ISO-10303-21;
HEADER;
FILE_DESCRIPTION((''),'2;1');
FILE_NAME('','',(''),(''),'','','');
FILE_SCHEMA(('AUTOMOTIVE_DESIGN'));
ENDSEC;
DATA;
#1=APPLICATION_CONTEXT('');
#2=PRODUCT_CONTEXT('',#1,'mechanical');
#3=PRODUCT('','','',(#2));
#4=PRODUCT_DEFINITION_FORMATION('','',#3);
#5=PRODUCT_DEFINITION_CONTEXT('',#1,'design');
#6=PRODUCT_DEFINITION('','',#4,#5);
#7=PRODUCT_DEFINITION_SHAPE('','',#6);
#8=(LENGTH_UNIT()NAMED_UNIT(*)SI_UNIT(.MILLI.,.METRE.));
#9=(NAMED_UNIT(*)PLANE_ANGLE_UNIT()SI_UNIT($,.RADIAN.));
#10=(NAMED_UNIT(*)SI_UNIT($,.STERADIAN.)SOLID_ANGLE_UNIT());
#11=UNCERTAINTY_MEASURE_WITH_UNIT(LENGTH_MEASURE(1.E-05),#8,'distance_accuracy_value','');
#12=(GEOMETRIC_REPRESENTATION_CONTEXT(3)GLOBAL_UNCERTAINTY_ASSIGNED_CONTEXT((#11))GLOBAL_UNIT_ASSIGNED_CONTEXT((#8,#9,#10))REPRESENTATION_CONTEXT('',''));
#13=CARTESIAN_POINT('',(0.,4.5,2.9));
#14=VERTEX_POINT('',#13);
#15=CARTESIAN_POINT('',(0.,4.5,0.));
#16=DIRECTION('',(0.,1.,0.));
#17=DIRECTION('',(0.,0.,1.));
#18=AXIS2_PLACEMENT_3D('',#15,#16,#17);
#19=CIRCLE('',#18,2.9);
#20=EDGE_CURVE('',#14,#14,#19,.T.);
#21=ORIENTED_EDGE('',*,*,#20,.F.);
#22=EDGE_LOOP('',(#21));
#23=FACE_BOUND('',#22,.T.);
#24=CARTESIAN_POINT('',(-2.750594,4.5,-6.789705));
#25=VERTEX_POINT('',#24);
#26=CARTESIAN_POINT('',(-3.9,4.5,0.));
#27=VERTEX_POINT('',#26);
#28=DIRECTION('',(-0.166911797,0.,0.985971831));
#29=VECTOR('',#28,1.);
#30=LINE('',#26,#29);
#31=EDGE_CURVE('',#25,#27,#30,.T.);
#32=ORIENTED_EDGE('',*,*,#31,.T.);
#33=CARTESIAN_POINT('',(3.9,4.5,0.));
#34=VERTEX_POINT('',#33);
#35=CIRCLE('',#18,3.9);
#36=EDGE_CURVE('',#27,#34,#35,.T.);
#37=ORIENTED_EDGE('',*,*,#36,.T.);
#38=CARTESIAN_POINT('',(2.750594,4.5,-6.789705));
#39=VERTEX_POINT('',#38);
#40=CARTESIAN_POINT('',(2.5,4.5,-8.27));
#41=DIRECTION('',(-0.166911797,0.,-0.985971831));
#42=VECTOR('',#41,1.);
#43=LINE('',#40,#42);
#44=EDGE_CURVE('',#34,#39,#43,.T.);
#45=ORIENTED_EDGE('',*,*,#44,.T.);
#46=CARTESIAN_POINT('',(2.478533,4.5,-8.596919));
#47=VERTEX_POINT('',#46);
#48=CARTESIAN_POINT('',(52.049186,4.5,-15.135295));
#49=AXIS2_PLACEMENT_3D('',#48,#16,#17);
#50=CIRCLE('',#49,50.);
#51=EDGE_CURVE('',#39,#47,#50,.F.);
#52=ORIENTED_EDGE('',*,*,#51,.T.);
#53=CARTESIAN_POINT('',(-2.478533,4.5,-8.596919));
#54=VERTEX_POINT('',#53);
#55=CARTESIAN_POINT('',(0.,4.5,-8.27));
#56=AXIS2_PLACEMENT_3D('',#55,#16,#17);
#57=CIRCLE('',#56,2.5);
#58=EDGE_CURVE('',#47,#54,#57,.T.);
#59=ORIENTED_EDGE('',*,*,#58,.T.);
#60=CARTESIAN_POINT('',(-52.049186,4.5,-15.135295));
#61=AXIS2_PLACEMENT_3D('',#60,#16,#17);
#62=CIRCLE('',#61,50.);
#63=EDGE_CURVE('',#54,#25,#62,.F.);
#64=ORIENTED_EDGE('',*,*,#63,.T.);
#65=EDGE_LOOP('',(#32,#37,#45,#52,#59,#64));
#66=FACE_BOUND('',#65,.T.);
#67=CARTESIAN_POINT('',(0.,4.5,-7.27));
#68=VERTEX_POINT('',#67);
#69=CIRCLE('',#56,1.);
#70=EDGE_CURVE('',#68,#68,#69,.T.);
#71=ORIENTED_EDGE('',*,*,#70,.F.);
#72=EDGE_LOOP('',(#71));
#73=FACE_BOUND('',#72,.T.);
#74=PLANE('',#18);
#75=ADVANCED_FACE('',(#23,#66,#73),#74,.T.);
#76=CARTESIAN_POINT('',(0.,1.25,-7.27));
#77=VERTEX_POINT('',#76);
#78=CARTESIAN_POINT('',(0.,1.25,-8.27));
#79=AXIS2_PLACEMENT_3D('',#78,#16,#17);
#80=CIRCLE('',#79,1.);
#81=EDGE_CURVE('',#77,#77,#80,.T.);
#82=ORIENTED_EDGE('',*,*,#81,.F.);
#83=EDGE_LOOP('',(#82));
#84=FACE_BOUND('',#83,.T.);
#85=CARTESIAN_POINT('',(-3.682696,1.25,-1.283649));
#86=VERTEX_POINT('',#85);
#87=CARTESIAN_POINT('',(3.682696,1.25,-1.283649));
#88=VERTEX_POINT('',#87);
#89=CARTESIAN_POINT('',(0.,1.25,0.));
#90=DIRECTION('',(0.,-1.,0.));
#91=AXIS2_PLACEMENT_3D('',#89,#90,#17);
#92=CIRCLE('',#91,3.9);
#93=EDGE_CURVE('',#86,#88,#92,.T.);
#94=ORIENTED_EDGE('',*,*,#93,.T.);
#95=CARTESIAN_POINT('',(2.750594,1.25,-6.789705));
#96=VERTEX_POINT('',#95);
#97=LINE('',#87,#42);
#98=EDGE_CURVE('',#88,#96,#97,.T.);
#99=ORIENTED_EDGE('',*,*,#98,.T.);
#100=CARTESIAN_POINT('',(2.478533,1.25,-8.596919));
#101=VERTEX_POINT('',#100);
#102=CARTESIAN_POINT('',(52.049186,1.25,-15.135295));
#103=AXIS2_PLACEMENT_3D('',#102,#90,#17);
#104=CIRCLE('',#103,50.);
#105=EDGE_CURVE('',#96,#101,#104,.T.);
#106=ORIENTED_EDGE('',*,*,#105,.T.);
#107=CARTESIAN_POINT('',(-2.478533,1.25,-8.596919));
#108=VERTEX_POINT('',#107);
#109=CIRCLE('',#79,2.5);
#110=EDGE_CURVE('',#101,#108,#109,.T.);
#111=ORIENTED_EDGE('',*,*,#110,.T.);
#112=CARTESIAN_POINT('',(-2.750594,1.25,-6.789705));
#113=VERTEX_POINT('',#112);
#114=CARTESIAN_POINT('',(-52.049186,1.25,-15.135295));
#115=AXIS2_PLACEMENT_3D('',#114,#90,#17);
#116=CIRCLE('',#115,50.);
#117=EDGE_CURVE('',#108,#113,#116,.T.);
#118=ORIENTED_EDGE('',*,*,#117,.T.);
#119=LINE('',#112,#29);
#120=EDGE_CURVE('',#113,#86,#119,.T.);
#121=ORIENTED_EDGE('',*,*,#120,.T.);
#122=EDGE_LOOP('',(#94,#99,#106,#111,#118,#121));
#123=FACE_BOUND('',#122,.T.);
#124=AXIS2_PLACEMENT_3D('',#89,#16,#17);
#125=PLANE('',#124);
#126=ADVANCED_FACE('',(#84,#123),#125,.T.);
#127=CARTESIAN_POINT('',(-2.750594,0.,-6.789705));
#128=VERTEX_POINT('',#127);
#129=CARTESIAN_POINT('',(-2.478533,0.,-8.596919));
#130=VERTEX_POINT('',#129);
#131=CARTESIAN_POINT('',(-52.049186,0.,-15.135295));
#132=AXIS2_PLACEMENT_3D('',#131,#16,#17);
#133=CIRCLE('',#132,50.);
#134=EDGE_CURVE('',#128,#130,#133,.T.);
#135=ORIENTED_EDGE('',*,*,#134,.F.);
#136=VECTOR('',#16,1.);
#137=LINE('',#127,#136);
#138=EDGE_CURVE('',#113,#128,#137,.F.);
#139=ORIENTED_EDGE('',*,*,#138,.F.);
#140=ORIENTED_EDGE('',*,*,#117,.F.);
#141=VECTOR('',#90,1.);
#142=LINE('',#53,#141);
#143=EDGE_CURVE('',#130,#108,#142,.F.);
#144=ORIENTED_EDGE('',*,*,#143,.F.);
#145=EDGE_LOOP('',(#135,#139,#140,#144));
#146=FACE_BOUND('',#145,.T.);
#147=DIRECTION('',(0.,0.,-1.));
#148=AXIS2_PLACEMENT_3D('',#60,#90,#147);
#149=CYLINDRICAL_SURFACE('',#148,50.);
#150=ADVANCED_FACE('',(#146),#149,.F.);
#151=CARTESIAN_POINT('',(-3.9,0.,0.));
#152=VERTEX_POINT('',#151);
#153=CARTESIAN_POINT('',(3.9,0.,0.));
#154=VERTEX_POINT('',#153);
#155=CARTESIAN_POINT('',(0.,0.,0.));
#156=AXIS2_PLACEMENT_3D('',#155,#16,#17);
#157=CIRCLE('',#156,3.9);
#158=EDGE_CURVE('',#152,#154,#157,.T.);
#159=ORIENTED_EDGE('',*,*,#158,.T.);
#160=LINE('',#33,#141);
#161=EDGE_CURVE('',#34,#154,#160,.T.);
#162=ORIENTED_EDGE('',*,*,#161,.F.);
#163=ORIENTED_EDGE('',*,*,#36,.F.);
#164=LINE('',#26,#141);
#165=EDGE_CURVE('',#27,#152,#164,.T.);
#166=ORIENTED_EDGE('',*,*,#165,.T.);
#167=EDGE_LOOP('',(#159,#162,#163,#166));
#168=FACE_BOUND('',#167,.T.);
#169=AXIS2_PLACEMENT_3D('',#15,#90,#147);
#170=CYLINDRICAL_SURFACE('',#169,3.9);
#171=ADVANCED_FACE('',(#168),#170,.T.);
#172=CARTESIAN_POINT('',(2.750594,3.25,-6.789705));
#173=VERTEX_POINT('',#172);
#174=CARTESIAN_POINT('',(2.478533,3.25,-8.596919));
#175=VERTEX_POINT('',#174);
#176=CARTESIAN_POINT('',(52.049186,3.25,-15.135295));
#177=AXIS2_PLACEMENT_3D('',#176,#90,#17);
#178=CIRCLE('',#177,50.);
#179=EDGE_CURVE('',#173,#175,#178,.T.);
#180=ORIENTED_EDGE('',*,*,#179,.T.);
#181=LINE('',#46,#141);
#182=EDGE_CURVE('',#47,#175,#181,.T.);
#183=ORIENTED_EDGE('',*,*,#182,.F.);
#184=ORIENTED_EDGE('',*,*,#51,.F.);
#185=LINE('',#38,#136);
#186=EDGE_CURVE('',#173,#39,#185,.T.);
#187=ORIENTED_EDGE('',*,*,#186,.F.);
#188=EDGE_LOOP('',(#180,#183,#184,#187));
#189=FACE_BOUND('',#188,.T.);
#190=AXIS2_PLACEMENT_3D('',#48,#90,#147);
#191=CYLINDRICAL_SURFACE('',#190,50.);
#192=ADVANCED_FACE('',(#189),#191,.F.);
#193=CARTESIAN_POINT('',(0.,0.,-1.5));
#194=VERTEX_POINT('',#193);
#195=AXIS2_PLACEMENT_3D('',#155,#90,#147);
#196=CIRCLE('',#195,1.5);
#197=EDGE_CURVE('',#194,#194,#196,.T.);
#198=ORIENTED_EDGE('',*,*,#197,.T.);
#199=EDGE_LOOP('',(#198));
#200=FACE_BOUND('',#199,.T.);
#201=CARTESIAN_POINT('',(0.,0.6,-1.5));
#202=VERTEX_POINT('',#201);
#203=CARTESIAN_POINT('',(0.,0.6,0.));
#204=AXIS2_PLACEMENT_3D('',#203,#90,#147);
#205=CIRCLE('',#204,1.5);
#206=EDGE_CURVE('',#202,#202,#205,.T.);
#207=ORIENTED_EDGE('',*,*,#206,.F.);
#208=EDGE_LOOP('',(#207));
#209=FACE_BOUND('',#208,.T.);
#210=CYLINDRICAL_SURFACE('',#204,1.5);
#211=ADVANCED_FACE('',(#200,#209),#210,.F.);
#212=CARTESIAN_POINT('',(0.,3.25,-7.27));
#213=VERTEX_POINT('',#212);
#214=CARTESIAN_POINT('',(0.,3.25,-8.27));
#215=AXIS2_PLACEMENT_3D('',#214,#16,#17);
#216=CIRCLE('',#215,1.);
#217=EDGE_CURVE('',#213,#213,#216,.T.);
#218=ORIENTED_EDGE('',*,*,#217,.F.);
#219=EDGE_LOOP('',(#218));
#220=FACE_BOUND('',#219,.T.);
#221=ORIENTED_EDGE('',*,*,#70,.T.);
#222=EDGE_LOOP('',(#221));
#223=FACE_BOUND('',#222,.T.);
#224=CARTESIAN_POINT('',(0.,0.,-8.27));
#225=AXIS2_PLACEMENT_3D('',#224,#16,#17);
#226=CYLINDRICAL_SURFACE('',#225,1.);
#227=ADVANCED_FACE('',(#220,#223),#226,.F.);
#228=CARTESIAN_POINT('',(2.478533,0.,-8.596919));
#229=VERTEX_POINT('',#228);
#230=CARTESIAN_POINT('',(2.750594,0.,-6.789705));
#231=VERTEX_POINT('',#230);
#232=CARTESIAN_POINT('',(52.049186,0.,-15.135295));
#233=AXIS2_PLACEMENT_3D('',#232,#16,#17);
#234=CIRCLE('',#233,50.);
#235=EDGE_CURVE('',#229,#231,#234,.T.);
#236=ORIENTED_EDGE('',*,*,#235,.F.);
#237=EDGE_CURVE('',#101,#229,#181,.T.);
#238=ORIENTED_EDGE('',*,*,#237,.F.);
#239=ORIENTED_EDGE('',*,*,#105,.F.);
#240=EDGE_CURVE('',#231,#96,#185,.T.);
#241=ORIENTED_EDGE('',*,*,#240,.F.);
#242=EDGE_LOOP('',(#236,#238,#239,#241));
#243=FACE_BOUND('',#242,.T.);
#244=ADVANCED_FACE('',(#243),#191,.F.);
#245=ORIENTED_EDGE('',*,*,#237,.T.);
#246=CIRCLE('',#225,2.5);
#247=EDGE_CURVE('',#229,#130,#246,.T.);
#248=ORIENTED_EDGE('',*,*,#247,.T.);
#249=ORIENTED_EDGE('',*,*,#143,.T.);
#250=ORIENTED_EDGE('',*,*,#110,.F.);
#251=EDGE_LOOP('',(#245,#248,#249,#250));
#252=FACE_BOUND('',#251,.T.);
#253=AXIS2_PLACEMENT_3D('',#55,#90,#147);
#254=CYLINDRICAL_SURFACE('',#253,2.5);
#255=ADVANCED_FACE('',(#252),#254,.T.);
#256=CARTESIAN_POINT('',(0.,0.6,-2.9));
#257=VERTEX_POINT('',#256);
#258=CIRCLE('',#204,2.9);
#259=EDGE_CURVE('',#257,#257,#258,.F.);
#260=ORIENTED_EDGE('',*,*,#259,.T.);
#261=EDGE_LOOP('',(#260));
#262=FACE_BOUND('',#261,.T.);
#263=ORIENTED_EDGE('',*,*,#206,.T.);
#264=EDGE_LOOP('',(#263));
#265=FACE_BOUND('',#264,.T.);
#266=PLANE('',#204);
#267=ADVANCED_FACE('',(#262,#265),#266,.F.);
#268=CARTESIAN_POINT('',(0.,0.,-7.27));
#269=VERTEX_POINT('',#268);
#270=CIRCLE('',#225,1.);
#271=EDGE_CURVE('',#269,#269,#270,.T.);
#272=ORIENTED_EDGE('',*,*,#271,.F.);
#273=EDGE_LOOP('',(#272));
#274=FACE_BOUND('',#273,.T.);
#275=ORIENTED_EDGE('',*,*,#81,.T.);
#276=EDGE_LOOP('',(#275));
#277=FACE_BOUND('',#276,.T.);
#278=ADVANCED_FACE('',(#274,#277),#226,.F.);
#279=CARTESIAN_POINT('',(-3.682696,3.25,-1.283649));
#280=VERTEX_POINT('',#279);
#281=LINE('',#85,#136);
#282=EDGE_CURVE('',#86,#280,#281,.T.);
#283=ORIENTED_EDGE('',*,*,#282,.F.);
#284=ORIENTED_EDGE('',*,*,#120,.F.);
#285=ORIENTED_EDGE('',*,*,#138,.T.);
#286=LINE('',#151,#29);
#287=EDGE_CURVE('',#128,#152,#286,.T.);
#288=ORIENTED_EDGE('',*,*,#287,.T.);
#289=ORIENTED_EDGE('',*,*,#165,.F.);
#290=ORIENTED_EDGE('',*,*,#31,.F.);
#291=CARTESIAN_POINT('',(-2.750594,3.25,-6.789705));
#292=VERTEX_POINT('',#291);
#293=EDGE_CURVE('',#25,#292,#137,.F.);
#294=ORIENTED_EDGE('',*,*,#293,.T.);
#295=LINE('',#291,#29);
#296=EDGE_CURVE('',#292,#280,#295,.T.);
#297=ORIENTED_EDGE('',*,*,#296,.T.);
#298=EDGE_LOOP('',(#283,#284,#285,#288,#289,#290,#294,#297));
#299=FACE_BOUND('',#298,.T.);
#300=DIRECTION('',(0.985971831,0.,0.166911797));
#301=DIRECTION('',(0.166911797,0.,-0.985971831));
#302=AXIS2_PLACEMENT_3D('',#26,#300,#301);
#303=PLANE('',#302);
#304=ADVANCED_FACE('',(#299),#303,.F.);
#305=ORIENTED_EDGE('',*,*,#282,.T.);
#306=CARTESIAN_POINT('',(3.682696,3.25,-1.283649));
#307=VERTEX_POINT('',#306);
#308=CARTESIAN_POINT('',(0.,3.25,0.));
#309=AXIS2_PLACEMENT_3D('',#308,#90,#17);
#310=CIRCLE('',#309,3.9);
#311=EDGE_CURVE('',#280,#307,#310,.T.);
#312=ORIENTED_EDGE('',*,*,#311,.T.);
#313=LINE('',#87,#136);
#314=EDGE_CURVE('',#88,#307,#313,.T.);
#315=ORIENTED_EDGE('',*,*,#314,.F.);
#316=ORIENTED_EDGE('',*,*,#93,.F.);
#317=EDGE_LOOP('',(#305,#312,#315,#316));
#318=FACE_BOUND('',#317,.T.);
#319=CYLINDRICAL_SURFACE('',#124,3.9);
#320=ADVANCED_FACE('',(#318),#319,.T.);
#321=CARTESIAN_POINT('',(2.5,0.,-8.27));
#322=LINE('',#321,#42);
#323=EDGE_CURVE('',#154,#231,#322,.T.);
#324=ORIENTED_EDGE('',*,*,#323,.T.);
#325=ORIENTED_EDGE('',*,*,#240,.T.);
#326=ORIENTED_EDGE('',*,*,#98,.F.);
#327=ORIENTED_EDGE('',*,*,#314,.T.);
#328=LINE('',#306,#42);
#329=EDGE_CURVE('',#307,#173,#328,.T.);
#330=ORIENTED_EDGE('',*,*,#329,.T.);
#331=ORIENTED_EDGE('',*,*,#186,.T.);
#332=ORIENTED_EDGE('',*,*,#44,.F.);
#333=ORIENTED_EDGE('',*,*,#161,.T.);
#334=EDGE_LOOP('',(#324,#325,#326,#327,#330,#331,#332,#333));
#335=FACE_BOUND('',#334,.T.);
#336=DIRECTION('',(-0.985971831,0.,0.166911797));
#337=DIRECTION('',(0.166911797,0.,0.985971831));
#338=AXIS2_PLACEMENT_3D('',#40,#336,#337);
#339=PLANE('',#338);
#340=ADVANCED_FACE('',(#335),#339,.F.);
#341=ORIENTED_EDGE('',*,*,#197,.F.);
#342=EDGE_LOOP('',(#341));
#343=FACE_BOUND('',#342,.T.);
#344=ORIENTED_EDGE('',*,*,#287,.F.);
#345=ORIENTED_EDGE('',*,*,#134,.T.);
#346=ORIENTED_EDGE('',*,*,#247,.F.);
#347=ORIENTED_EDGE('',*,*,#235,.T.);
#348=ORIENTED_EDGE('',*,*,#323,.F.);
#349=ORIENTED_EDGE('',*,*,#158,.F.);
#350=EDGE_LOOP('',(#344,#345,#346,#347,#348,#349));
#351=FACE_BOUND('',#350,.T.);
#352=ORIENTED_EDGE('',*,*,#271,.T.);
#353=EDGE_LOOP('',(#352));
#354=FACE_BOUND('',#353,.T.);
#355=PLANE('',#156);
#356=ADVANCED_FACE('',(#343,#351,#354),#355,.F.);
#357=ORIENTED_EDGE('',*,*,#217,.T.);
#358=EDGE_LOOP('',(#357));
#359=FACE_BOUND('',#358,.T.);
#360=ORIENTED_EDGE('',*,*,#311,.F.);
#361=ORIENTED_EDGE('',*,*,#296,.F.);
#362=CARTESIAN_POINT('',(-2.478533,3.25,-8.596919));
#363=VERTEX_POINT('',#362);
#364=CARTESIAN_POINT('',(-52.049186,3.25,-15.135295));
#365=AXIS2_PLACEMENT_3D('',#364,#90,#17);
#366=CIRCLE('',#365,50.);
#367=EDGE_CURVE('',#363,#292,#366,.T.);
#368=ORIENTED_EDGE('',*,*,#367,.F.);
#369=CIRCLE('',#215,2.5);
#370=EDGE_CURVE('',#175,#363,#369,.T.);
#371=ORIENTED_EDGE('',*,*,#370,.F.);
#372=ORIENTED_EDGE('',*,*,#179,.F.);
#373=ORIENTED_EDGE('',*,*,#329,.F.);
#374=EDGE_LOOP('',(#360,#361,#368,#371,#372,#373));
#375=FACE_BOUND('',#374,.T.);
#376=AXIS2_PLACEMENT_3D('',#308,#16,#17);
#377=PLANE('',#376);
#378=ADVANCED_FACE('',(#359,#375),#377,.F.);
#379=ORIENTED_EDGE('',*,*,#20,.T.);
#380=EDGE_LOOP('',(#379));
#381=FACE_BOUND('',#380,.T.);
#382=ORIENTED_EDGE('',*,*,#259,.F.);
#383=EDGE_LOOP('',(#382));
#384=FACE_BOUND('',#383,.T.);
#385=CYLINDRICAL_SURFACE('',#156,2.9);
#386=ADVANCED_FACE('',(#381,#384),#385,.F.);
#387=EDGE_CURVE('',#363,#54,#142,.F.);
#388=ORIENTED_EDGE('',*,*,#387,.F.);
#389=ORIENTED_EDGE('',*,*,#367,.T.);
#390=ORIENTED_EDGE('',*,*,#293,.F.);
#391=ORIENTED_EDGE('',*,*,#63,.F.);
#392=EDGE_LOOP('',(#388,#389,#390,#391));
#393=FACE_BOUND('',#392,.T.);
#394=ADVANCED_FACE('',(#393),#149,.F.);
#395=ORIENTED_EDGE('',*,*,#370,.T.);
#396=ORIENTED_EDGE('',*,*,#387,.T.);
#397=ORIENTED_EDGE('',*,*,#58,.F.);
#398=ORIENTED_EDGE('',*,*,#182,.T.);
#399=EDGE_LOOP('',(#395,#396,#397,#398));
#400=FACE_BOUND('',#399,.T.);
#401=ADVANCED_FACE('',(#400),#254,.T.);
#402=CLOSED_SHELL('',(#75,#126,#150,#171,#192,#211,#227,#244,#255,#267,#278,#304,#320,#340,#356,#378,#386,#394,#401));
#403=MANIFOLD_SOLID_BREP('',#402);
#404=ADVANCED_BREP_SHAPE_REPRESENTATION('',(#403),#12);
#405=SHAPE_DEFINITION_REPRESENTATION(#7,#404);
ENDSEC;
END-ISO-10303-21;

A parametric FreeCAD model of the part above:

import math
import FreeCAD as App
import Part
import Sketcher
from FreeCAD import Vector
Q = App.Units.Quantity


def edges_at(feature, points):
    """Names of the edges that pass closest to the given points."""
    edges = feature.Shape.Edges
    near = lambda p: min(range(len(edges)), key=lambda i: edges[i].distToShape(Part.Vertex(*p))[0])
    return sorted({f"Edge{near(p) + 1}" for p in points})

doc = App.newDocument("Part")
params = doc.addObject("Spreadsheet::Sheet", "Params")
for row, (alias, value) in enumerate([
    ("sketch1_radius", "3.9 mm"),
    ("sketch1_radius2", "2.5 mm"),
    ("pad1_length", "4.5 mm"),
    ("sketch2_diameter", "2 mm"),
    ("sketch2_diameter2", "5.8 mm"),
    ("fillet_radius", "50 mm"),
    ("sketch3_diameter", "2 mm"),
    ("sketch3_radius", "2.5 mm"),
    ("sketch3_radius2", "3.9 mm"),
    ("pocket2_length", "2 mm"),
    ("sketch4_diameter", "3 mm"),
    ("sketch4_diameter2", "5.8 mm"),
    ("pad2_length", "0.6 mm"),
], start=1):
    params.set(f"A{row}", alias)
    params.set(f"B{row}", "=" + value)
    params.setAlias(f"B{row}", alias)

body = doc.addObject("PartDesign::Body", "Body")

sketch1 = body.newObject("Sketcher::SketchObject", "Sketch")
sketch1.AttachmentSupport = (doc.getObject("XZ_Plane"), [""])
sketch1.MapMode = "FlatFace"
sketch1.addGeometry([
    Part.LineSegment(Vector(-2.5, -8.3, 0), Vector(-3.9, 0, 0)),
    Part.ArcOfCircle(Part.Circle(Vector(0, 0, 0), Vector(0, 0, 1), 3.9), math.radians(0), math.radians(180)),
    Part.LineSegment(Vector(3.9, 0, 0), Vector(2.5, -8.3, 0)),
    Part.ArcOfCircle(Part.Circle(Vector(0, -8.3, 0), Vector(0, 0, 1), 2.5), math.radians(180), math.radians(360)),
], False)
sketch1.addConstraint([
    Sketcher.Constraint("Coincident", 0, 2, 1, 2),
    Sketcher.Constraint("Coincident", 1, 1, 2, 1),
    Sketcher.Constraint("Coincident", 2, 2, 3, 2),
    Sketcher.Constraint("Coincident", 3, 1, 0, 1),
    Sketcher.Constraint("Coincident", 1, 3, -1, 1),
    Sketcher.Constraint("Symmetric", 2, 2, 3, 1, -2),
    Sketcher.Constraint("PointOnObject", 0, 2, -1),
    Sketcher.Constraint("PointOnObject", 1, 1, -1),
    Sketcher.Constraint("Horizontal", 3, 3, 2, 2),
    Sketcher.Constraint("Radius", 1, Q("3.9 mm")),
    Sketcher.Constraint("Radius", 3, Q("2.5 mm")),
    Sketcher.Constraint("DistanceY", 3, 3, -1, 1, Q("8.27 mm")),
])
sketch1.setExpression("Constraints[9]", "Params.sketch1_radius")
sketch1.setExpression("Constraints[10]", "Params.sketch1_radius2")
pad1 = body.newObject("PartDesign::Pad", "Pad")
pad1.Profile = sketch1
pad1.setExpression("Length", "Params.pad1_length")
pad1.Reversed = True

sketch2 = body.newObject("Sketcher::SketchObject", "Sketch001")
sketch2.AttachmentSupport = (doc.getObject("XZ_Plane"), [""])
sketch2.MapMode = "FlatFace"
sketch2.AttachmentOffset = App.Placement(Vector(0, 0, -4.5), App.Rotation())
sketch2.addGeometry([
    Part.Circle(Vector(0, 0, 0), Vector(0, 0, 1), 2.9),
    Part.Circle(Vector(0, -8.3, 0), Vector(0, 0, 1), 1),
], False)
sketch2.addConstraint([
    Sketcher.Constraint("Coincident", 0, 3, -1, 1),
    Sketcher.Constraint("PointOnObject", 1, 3, -2),
    Sketcher.Constraint("Diameter", 1, Q("2 mm")),
    Sketcher.Constraint("Diameter", 0, Q("5.8 mm")),
    Sketcher.Constraint("DistanceY", 1, 3, -1, 1, Q("8.27 mm")),
])
sketch2.setExpression("Constraints[2]", "Params.sketch2_diameter")
sketch2.setExpression("Constraints[3]", "Params.sketch2_diameter2")
pocket1 = body.newObject("PartDesign::Pocket", "Pocket")
pocket1.Profile = sketch2
pocket1.Type = "ThroughAll"
pocket1.Reversed = True
doc.recompute()

fillet = body.newObject("PartDesign::Fillet", "Fillet")
fillet.Base = (pocket1, edges_at(pocket1, [(-2.5, 2.25, -8.27), (2.5, 2.25, -8.27)]))
fillet.setExpression("Radius", "Params.fillet_radius")

sketch3 = body.newObject("Sketcher::SketchObject", "Sketch002")
sketch3.AttachmentSupport = (doc.getObject("XZ_Plane"), [""])
sketch3.MapMode = "FlatFace"
sketch3.AttachmentOffset = App.Placement(Vector(0, 0, -2.25), App.Rotation())
sketch3.addGeometry([
    Part.LineSegment(Vector(3.682696, -1.283649, 0), Vector(2.750594, -6.789705, 0)),
    Part.ArcOfCircle(Part.Circle(Vector(52.049183, -15.135294, 0), Vector(0, 0, 1), 49.999997), math.radians(170.391687), math.radians(172.486054)),
    Part.ArcOfCircle(Part.Circle(Vector(0, -8.27, 0), Vector(0, 0, 1), 2.5), math.radians(-172.486054), math.radians(-7.513946)),
    Part.ArcOfCircle(Part.Circle(Vector(-52.049183, -15.135294, 0), Vector(0, 0, 1), 49.999997), math.radians(7.513946), math.radians(9.608313)),
    Part.LineSegment(Vector(-2.750594, -6.789705, 0), Vector(-3.682696, -1.283649, 0)),
    Part.ArcOfCircle(Part.Circle(Vector(0, 0, 0), Vector(0, 0, 1), 3.9), math.radians(-160.783375), math.radians(-19.216625)),
    Part.Circle(Vector(0, -8.27, 0), Vector(0, 0, 1), 1),
], False)
sketch3.addConstraint([
    Sketcher.Constraint("Coincident", 0, 2, 1, 1),
    Sketcher.Constraint("Coincident", 1, 2, 2, 2),
    Sketcher.Constraint("Coincident", 2, 1, 3, 1),
    Sketcher.Constraint("Coincident", 3, 2, 4, 1),
    Sketcher.Constraint("Coincident", 4, 2, 5, 1),
    Sketcher.Constraint("Coincident", 5, 2, 0, 1),
    Sketcher.Constraint("Coincident", 5, 3, -1, 1),
    Sketcher.Constraint("Coincident", 6, 3, 2, 3),
    Sketcher.Constraint("PointOnObject", 2, 3, -2),
    Sketcher.Constraint("Diameter", 6, Q("2 mm")),
    Sketcher.Constraint("Radius", 2, Q("2.5 mm")),
    Sketcher.Constraint("Radius", 5, Q("3.9 mm")),
    Sketcher.Constraint("DistanceY", 2, 3, -1, 1, Q("8.27 mm")),
    Sketcher.Constraint("Radius", 1, Q("49.999997 mm")),
    Sketcher.Constraint("Radius", 3, Q("49.999997 mm")),
    Sketcher.Constraint("DistanceX", 4, 2, 3, 2, Q("0.932101 mm")),
    Sketcher.Constraint("DistanceX", 0, 2, 5, 2, Q("0.932101 mm")),
    Sketcher.Constraint("DistanceY", 1, 2, -1, 1, Q("8.596919 mm")),
    Sketcher.Constraint("DistanceY", 2, 1, -1, 1, Q("8.596919 mm")),
    Sketcher.Constraint("DistanceY", 4, 2, -1, 1, Q("1.283649 mm")),
    Sketcher.Constraint("DistanceY", 5, 2, -1, 1, Q("1.283649 mm")),
    Sketcher.Constraint("DistanceX", 0, 2, 1, 3, Q("49.298589 mm")),
    Sketcher.Constraint("DistanceY", 3, 3, 0, 2, Q("8.345589 mm")),
])
sketch3.setExpression("Constraints[9]", "Params.sketch3_diameter")
sketch3.setExpression("Constraints[10]", "Params.sketch3_radius")
sketch3.setExpression("Constraints[11]", "Params.sketch3_radius2")
pocket2 = body.newObject("PartDesign::Pocket", "Pocket001")
pocket2.Profile = sketch3
pocket2.setExpression("Length", "Params.pocket2_length")
pocket2.Midplane = True

sketch4 = body.newObject("Sketcher::SketchObject", "Sketch003")
sketch4.AttachmentSupport = (doc.getObject("XZ_Plane"), [""])
sketch4.MapMode = "FlatFace"
sketch4.AttachmentOffset = App.Placement(Vector(0, 0, -0.6), App.Rotation())
sketch4.addGeometry([
    Part.Circle(Vector(0, 0, 0), Vector(0, 0, 1), 2.9),
    Part.Circle(Vector(0, 0, 0), Vector(0, 0, 1), 1.5),
], False)
sketch4.addConstraint([
    Sketcher.Constraint("Coincident", 0, 3, -1, 1),
    Sketcher.Constraint("Coincident", 1, 3, -1, 1),
    Sketcher.Constraint("Diameter", 1, Q("3 mm")),
    Sketcher.Constraint("Diameter", 0, Q("5.8 mm")),
])
sketch4.setExpression("Constraints[2]", "Params.sketch4_diameter")
sketch4.setExpression("Constraints[3]", "Params.sketch4_diameter2")
pad2 = body.newObject("PartDesign::Pad", "Pad001")
pad2.Profile = sketch4
pad2.setExpression("Length", "Params.pad2_length")

doc.recompute()
